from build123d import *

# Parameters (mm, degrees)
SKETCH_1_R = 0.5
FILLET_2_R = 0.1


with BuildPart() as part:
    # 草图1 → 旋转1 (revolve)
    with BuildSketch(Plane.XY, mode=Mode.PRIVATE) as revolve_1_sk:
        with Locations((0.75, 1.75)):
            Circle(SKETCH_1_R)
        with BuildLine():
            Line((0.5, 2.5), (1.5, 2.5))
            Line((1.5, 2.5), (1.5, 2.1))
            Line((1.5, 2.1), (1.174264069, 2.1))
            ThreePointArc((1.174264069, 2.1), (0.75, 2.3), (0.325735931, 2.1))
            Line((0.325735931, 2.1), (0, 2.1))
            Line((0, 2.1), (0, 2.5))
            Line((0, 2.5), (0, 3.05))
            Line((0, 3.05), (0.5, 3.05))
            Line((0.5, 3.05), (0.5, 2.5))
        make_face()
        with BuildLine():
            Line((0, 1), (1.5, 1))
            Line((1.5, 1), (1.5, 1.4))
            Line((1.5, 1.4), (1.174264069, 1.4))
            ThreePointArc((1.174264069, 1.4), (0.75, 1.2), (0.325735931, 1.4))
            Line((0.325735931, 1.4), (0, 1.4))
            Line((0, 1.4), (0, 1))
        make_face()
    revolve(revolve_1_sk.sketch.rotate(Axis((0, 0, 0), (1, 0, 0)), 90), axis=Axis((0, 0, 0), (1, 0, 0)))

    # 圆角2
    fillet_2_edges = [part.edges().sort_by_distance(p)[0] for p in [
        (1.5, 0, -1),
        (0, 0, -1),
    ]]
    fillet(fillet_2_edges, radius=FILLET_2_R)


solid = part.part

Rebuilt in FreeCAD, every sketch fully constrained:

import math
import FreeCAD as App
import Part
import Sketcher
Q = App.Units.Quantity


def edges_at(feature, points):
    """Names of the edges that pass closest to the given points."""
    edges = feature.Shape.Edges
    near = lambda p: min(range(len(edges)), key=lambda i: edges[i].distToShape(Part.Vertex(*p))[0])
    return sorted({f"Edge{near(p) + 1}" for p in points})

doc = App.newDocument("Part")
params = doc.addObject("Spreadsheet::Sheet", "Params")
for row, (alias, value) in enumerate([
    ("sketch1_diameter", "1 mm"),
    ("sketch1_width", "1 mm"),
    ("sketch1_radius", "0.55 mm"),
    ("sketch1_width2", "0.5 mm"),
    ("sketch1_height", "0.4 mm"),
    ("revolution_angle", "360 deg"),
    ("fillet_radius", "0.1 mm"),
], start=1):
    params.set(f"A{row}", alias)
    params.set(f"B{row}", "=" + value)
    params.setAlias(f"B{row}", alias)

body = doc.addObject("PartDesign::Body", "Body")
body.AllowCompound = True

# Sketch on XY plane
sketch1 = body.newObject("Sketcher::SketchObject", "Sketch")
sketch1.AttachmentSupport = (doc.getObject("XY_Plane"), [""])
sketch1.MapMode = "FlatFace"
sketch1.addGeometry(Part.Circle(App.Vector(0.75, 1.75, 0), App.Vector(0, 0, 1), 0.5), False)
sketch1.addGeometry(Part.LineSegment(App.Vector(1.5, 2.5, 0), App.Vector(0.5, 2.5, 0)), False)
sketch1.addGeometry(Part.LineSegment(App.Vector(0.5, 2.5, 0), App.Vector(0.5, 3.05, 0)), False)
sketch1.addGeometry(Part.LineSegment(App.Vector(0.5, 3.05, 0), App.Vector(0, 3.05, 0)), False)
sketch1.addGeometry(Part.LineSegment(App.Vector(0, 3.05, 0), App.Vector(0, 2.1, 0)), False)
sketch1.addGeometry(Part.LineSegment(App.Vector(0, 2.1, 0), App.Vector(0.33, 2.1, 0)), False)
sketch1.addGeometry(Part.ArcOfCircle(Part.Circle(App.Vector(0.75, 1.75, 0), App.Vector(0, 0, 1), 0.55), math.radians(40), math.radians(140)), False)
sketch1.addGeometry(Part.LineSegment(App.Vector(1.17, 2.1, 0), App.Vector(1.5, 2.1, 0)), False)
sketch1.addGeometry(Part.LineSegment(App.Vector(1.5, 2.1, 0), App.Vector(1.5, 2.5, 0)), False)
sketch1.addGeometry(Part.LineSegment(App.Vector(0, 1, 0), App.Vector(1.5, 1, 0)), False)
sketch1.addGeometry(Part.LineSegment(App.Vector(1.5, 1, 0), App.Vector(1.5, 1.4, 0)), False)
sketch1.addGeometry(Part.LineSegment(App.Vector(1.5, 1.4, 0), App.Vector(1.17, 1.4, 0)), False)
sketch1.addGeometry(Part.ArcOfCircle(Part.Circle(App.Vector(0.75, 1.75, 0), App.Vector(0, 0, 1), 0.55), math.radians(-140), math.radians(-40)), False)
sketch1.addGeometry(Part.LineSegment(App.Vector(0.33, 1.4, 0), App.Vector(0, 1.4, 0)), False)
sketch1.addGeometry(Part.LineSegment(App.Vector(0, 1.4, 0), App.Vector(0, 1, 0)), False)
sketch1.addConstraint(Sketcher.Constraint("Coincident", 1, 2, 2, 1))
sketch1.addConstraint(Sketcher.Constraint("Coincident", 2, 2, 3, 1))
sketch1.addConstraint(Sketcher.Constraint("Coincident", 3, 2, 4, 1))
sketch1.addConstraint(Sketcher.Constraint("Coincident", 4, 2, 5, 1))
sketch1.addConstraint(Sketcher.Constraint("Coincident", 5, 2, 6, 2))
sketch1.addConstraint(Sketcher.Constraint("Coincident", 6, 1, 7, 1))
sketch1.addConstraint(Sketcher.Constraint("Coincident", 7, 2, 8, 1))
sketch1.addConstraint(Sketcher.Constraint("Coincident", 8, 2, 1, 1))
sketch1.addConstraint(Sketcher.Constraint("Coincident", 9, 2, 10, 1))
sketch1.addConstraint(Sketcher.Constraint("Coincident", 10, 2, 11, 1))
sketch1.addConstraint(Sketcher.Constraint("Coincident", 11, 2, 12, 2))
sketch1.addConstraint(Sketcher.Constraint("Coincident", 12, 1, 13, 1))
sketch1.addConstraint(Sketcher.Constraint("Coincident", 13, 2, 14, 1))
sketch1.addConstraint(Sketcher.Constraint("Coincident", 14, 2, 9, 1))
sketch1.addConstraint(Sketcher.Constraint("Horizontal", 1))
sketch1.addConstraint(Sketcher.Constraint("Vertical", 2))
sketch1.addConstraint(Sketcher.Constraint("Horizontal", 3))
sketch1.addConstraint(Sketcher.Constraint("Vertical", 4))
sketch1.addConstraint(Sketcher.Constraint("Horizontal", 5))
sketch1.addConstraint(Sketcher.Constraint("Horizontal", 7))
sketch1.addConstraint(Sketcher.Constraint("Vertical", 8))
sketch1.addConstraint(Sketcher.Constraint("Horizontal", 9))
sketch1.addConstraint(Sketcher.Constraint("Vertical", 10))
sketch1.addConstraint(Sketcher.Constraint("Horizontal", 11))
sketch1.addConstraint(Sketcher.Constraint("Horizontal", 13))
sketch1.addConstraint(Sketcher.Constraint("Vertical", 14))
sketch1.addConstraint(Sketcher.Constraint("Coincident", 6, 3, 0, 3))
sketch1.addConstraint(Sketcher.Constraint("Coincident", 12, 3, 0, 3))
sketch1.addConstraint(Sketcher.Constraint("Equal", 6, 12))
sketch1.addConstraint(Sketcher.Constraint("PointOnObject", 3, 2, -2))
sketch1.addConstraint(Sketcher.Constraint("PointOnObject", 13, 2, -2))
sketch1.addConstraint(Sketcher.Constraint("Horizontal", 5, 2, 6, 1))
sketch1.addConstraint(Sketcher.Constraint("Horizontal", 11, 2, 12, 1))
sketch1.addConstraint(Sketcher.Constraint("Vertical", 8, 2, 9, 2))
sketch1.addConstraint(Sketcher.Constraint("Vertical", 6, 1, 11, 2))
sketch1.addConstraint(Sketcher.Constraint("Equal", 5, 7))
sketch1.addConstraint(Sketcher.Constraint("Equal", 8, 10))
sketch1.addConstraint(Sketcher.Constraint("Diameter", 0, Q("1 mm")))
sketch1.addConstraint(Sketcher.Constraint("DistanceX", 1, 2, 1, 1, Q("1 mm")))
sketch1.addConstraint(Sketcher.Constraint("Radius", 6, Q("0.55 mm")))
sketch1.addConstraint(Sketcher.Constraint("DistanceX", 3, 2, 3, 1, Q("0.5 mm")))
sketch1.addConstraint(Sketcher.Constraint("DistanceY", 8, 1, 8, 2, Q("0.4 mm")))
sketch1.addConstraint(Sketcher.Constraint("DistanceY", -1, 1, 9, 2, Q("1 mm")))
sketch1.addConstraint(Sketcher.Constraint("DistanceY", 2, 1, 2, 2, Q("0.55 mm")))
sketch1.addConstraint(Sketcher.Constraint("DistanceY", -1, 1, 1, 2, Q("2.5 mm")))
sketch1.setExpression("Constraints[37]", "Params.sketch1_diameter")
sketch1.setExpression("Constraints[38]", "Params.sketch1_width")
sketch1.setExpression("Constraints[39]", "Params.sketch1_radius")
sketch1.setExpression("Constraints[40]", "Params.sketch1_width2")
sketch1.setExpression("Constraints[41]", "Params.sketch1_height")
revolution = body.newObject("PartDesign::Revolution", "Revolution")
revolution.Profile = sketch1
revolution.ReferenceAxis = (sketch1, ["H_Axis"])
revolution.setExpression("Angle", "Params.revolution_angle")
doc.recompute()

fillet = body.newObject("PartDesign::Fillet", "Fillet")
fillet.Base = (revolution, edges_at(revolution, [(1.5, 0, -1), (0, 0, -1)]))
fillet.setExpression("Radius", "Params.fillet_radius")

doc.recompute()
